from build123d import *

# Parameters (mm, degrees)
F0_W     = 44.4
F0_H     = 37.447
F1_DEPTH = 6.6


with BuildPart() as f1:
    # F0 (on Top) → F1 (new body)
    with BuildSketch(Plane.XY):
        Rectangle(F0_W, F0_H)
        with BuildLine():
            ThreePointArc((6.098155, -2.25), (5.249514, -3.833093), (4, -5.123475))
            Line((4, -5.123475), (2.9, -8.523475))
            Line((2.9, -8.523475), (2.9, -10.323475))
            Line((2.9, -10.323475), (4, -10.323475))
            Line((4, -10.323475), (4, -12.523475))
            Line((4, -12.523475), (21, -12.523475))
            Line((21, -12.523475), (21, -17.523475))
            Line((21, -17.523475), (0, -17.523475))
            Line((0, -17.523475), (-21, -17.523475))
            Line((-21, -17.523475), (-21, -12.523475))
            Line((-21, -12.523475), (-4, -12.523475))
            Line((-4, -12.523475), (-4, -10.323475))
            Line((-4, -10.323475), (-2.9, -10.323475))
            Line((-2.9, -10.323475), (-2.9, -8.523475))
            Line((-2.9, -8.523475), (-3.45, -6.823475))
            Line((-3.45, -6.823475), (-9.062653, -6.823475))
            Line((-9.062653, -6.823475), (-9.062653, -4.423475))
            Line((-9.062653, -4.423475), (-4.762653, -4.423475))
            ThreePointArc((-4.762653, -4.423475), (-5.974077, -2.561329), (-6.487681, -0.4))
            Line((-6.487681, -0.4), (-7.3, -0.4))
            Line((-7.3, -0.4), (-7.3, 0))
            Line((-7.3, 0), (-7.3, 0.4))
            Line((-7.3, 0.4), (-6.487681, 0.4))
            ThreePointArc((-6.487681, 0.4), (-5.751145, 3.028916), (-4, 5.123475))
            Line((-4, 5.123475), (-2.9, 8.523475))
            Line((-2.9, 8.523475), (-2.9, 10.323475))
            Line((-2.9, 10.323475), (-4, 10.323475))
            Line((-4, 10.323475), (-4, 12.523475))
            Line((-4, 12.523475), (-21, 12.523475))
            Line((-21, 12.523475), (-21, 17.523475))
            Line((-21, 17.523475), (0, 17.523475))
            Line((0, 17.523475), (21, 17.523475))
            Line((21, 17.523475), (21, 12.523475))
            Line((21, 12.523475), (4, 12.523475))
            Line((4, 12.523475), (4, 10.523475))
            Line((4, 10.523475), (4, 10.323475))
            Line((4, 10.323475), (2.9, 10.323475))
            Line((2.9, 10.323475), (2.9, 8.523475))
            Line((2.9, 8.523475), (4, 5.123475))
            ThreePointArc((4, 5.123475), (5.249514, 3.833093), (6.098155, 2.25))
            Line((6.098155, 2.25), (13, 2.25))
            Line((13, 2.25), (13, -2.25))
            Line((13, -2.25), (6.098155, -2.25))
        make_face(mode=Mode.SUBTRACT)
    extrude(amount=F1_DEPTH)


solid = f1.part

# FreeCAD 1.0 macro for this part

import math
import FreeCAD as App
import Part
import Sketcher
from FreeCAD import Vector
Q = App.Units.Quantity


def add_polygon(sketch, points):
    """Adds a closed chain of lines whose ends are joined by coincident constraints."""
    first, n = sketch.GeometryCount, len(points)
    for a, b in zip(points, points[1:] + points[:1]):
        sketch.addGeometry(Part.LineSegment(App.Vector(*a, 0), App.Vector(*b, 0)), False)
    for i in range(n):
        sketch.addConstraint(Sketcher.Constraint("Coincident", first + i, 2, first + (i + 1) % n, 1))

doc = App.newDocument("Part")
params = doc.addObject("Spreadsheet::Sheet", "Params")
for row, (alias, value) in enumerate([
    ("sketch1_radius", "6.5 mm"),
    ("sketch1_width", "17 mm"),
    ("sketch1_width2", "42 mm"),
    ("sketch1_height", "5 mm"),
    ("sketch1_width3", "44.4 mm"),
    ("pad1_length", "6.6 mm"),
], start=1):
    params.set(f"A{row}", alias)
    params.set(f"B{row}", "=" + value)
    params.setAlias(f"B{row}", alias)

body = doc.addObject("PartDesign::Body", "Body")

sketch1 = doc.addObject("Sketcher::SketchObject", "Sketch")
body.addObject(sketch1)
sketch1.AttachmentSupport = (doc.XY_Plane, [""])
sketch1.MapMode = "FlatFace"
add_polygon(sketch1, [(-22.2, 18.7), (-22.2, -18.7), (22.2, -18.7), (22.2, 18.7)])
sketch1.addGeometry(Part.LineSegment(Vector(13, -2.2, 0), Vector(6.1, -2.2, 0)), False)
sketch1.addGeometry(Part.ArcOfCircle(Part.Circle(Vector(0, 0, 0), Vector(0, 0, 1), 6.5), math.radians(-52), math.radians(-20)), False)
sketch1.addGeometry(Part.LineSegment(Vector(4, -5.1, 0), Vector(2.9, -8.5, 0)), False)
sketch1.addGeometry(Part.LineSegment(Vector(2.9, -8.5, 0), Vector(2.9, -10.3, 0)), False)
sketch1.addGeometry(Part.LineSegment(Vector(2.9, -10.3, 0), Vector(4, -10.3, 0)), False)
sketch1.addGeometry(Part.LineSegment(Vector(4, -10.3, 0), Vector(4, -12.5, 0)), False)
sketch1.addGeometry(Part.LineSegment(Vector(4, -12.5, 0), Vector(21, -12.5, 0)), False)
sketch1.addGeometry(Part.LineSegment(Vector(21, -12.5, 0), Vector(21, -17.5, 0)), False)
sketch1.addGeometry(Part.LineSegment(Vector(21, -17.5, 0), Vector(-21, -17.5, 0)), False)
sketch1.addGeometry(Part.LineSegment(Vector(-21, -17.5, 0), Vector(-21, -12.5, 0)), False)
sketch1.addGeometry(Part.LineSegment(Vector(-21, -12.5, 0), Vector(-4, -12.5, 0)), False)
sketch1.addGeometry(Part.LineSegment(Vector(-4, -12.5, 0), Vector(-4, -10.3, 0)), False)
sketch1.addGeometry(Part.LineSegment(Vector(-4, -10.3, 0), Vector(-2.9, -10.3, 0)), False)
sketch1.addGeometry(Part.LineSegment(Vector(-2.9, -10.3, 0), Vector(-2.9, -8.5, 0)), False)
sketch1.addGeometry(Part.LineSegment(Vector(-2.9, -8.5, 0), Vector(-3.5, -6.8, 0)), False)
sketch1.addGeometry(Part.LineSegment(Vector(-3.5, -6.8, 0), Vector(-9.1, -6.8, 0)), False)
sketch1.addGeometry(Part.LineSegment(Vector(-9.1, -6.8, 0), Vector(-9.1, -4.4, 0)), False)
sketch1.addGeometry(Part.LineSegment(Vector(-9.1, -4.4, 0), Vector(-4.8, -4.4, 0)), False)
sketch1.addGeometry(Part.ArcOfCircle(Part.Circle(Vector(0, 0, 0), Vector(0, 0, 1), 6.5), math.radians(-176), math.radians(-137)), False)
sketch1.addGeometry(Part.LineSegment(Vector(-6.5, -0.4, 0), Vector(-7.3, -0.4, 0)), False)
sketch1.addGeometry(Part.LineSegment(Vector(-7.3, -0.4, 0), Vector(-7.3, 0.4, 0)), False)
sketch1.addGeometry(Part.LineSegment(Vector(-7.3, 0.4, 0), Vector(-6.5, 0.4, 0)), False)
sketch1.addGeometry(Part.ArcOfCircle(Part.Circle(Vector(0, 0, 0), Vector(0, 0, 1), 6.5), math.radians(128), math.radians(176)), False)
sketch1.addGeometry(Part.LineSegment(Vector(-4, 5.1, 0), Vector(-2.9, 8.5, 0)), False)
sketch1.addGeometry(Part.LineSegment(Vector(-2.9, 8.5, 0), Vector(-2.9, 10.3, 0)), False)
sketch1.addGeometry(Part.LineSegment(Vector(-2.9, 10.3, 0), Vector(-4, 10.3, 0)), False)
sketch1.addGeometry(Part.LineSegment(Vector(-4, 10.3, 0), Vector(-4, 12.5, 0)), False)
sketch1.addGeometry(Part.LineSegment(Vector(-4, 12.5, 0), Vector(-21, 12.5, 0)), False)
sketch1.addGeometry(Part.LineSegment(Vector(-21, 12.5, 0), Vector(-21, 17.5, 0)), False)
sketch1.addGeometry(Part.LineSegment(Vector(-21, 17.5, 0), Vector(21, 17.5, 0)), False)
sketch1.addGeometry(Part.LineSegment(Vector(21, 17.5, 0), Vector(21, 12.5, 0)), False)
sketch1.addGeometry(Part.LineSegment(Vector(21, 12.5, 0), Vector(4, 12.5, 0)), False)
sketch1.addGeometry(Part.LineSegment(Vector(4, 12.5, 0), Vector(4, 10.3, 0)), False)
sketch1.addGeometry(Part.LineSegment(Vector(4, 10.3, 0), Vector(2.9, 10.3, 0)), False)
sketch1.addGeometry(Part.LineSegment(Vector(2.9, 10.3, 0), Vector(2.9, 8.5, 0)), False)
sketch1.addGeometry(Part.LineSegment(Vector(2.9, 8.5, 0), Vector(4, 5.1, 0)), False)
sketch1.addGeometry(Part.ArcOfCircle(Part.Circle(Vector(0, 0, 0), Vector(0, 0, 1), 6.5), math.radians(20), math.radians(52)), False)
sketch1.addGeometry(Part.LineSegment(Vector(6.1, 2.2, 0), Vector(13, 2.2, 0)), False)
sketch1.addGeometry(Part.LineSegment(Vector(13, 2.2, 0), Vector(13, -2.2, 0)), False)
sketch1.addConstraint([
    Sketcher.Constraint("Coincident", 4, 2, 5, 2),
    Sketcher.Constraint("Coincident", 5, 1, 6, 1),
    Sketcher.Constraint("Coincident", 6, 2, 7, 1),
    Sketcher.Constraint("Coincident", 7, 2, 8, 1),
    Sketcher.Constraint("Coincident", 8, 2, 9, 1),
    Sketcher.Constraint("Coincident", 9, 2, 10, 1),
    Sketcher.Constraint("Coincident", 10, 2, 11, 1),
    Sketcher.Constraint("Coincident", 11, 2, 12, 1),
    Sketcher.Constraint("Coincident", 12, 2, 13, 1),
    Sketcher.Constraint("Coincident", 13, 2, 14, 1),
    Sketcher.Constraint("Coincident", 14, 2, 15, 1),
    Sketcher.Constraint("Coincident", 15, 2, 16, 1),
    Sketcher.Constraint("Coincident", 16, 2, 17, 1),
    Sketcher.Constraint("Coincident", 17, 2, 18, 1),
    Sketcher.Constraint("Coincident", 18, 2, 19, 1),
    Sketcher.Constraint("Coincident", 19, 2, 20, 1),
    Sketcher.Constraint("Coincident", 20, 2, 21, 1),
    Sketcher.Constraint("Coincident", 21, 2, 22, 2),
    Sketcher.Constraint("Coincident", 22, 1, 23, 1),
    Sketcher.Constraint("Coincident", 23, 2, 24, 1),
    Sketcher.Constraint("Coincident", 24, 2, 25, 1),
    Sketcher.Constraint("Coincident", 25, 2, 26, 2),
    Sketcher.Constraint("Coincident", 26, 1, 27, 1),
    Sketcher.Constraint("Coincident", 27, 2, 28, 1),
    Sketcher.Constraint("Coincident", 28, 2, 29, 1),
    Sketcher.Constraint("Coincident", 29, 2, 30, 1),
    Sketcher.Constraint("Coincident", 30, 2, 31, 1),
    Sketcher.Constraint("Coincident", 31, 2, 32, 1),
    Sketcher.Constraint("Coincident", 32, 2, 33, 1),
    Sketcher.Constraint("Coincident", 33, 2, 34, 1),
    Sketcher.Constraint("Coincident", 34, 2, 35, 1),
    Sketcher.Constraint("Coincident", 35, 2, 36, 1),
    Sketcher.Constraint("Coincident", 36, 2, 37, 1),
    Sketcher.Constraint("Coincident", 37, 2, 38, 1),
    Sketcher.Constraint("Coincident", 38, 2, 39, 1),
    Sketcher.Constraint("Coincident", 39, 2, 40, 2),
    Sketcher.Constraint("Coincident", 40, 1, 41, 1),
    Sketcher.Constraint("Coincident", 41, 2, 42, 1),
    Sketcher.Constraint("Coincident", 42, 2, 4, 1),
    Sketcher.Constraint("Vertical", 0),
    Sketcher.Constraint("Horizontal", 1),
    Sketcher.Constraint("Vertical", 2),
    Sketcher.Constraint("Horizontal", 3),
    Sketcher.Constraint("Horizontal", 4),
    Sketcher.Constraint("Vertical", 7),
    Sketcher.Constraint("Horizontal", 8),
    Sketcher.Constraint("Vertical", 9),
    Sketcher.Constraint("Horizontal", 10),
    Sketcher.Constraint("Vertical", 11),
    Sketcher.Constraint("Horizontal", 12),
    Sketcher.Constraint("Vertical", 13),
    Sketcher.Constraint("Horizontal", 14),
    Sketcher.Constraint("Vertical", 15),
    Sketcher.Constraint("Horizontal", 16),
    Sketcher.Constraint("Vertical", 17),
    Sketcher.Constraint("Horizontal", 19),
    Sketcher.Constraint("Vertical", 20),
    Sketcher.Constraint("Horizontal", 21),
    Sketcher.Constraint("Horizontal", 23),
    Sketcher.Constraint("Vertical", 24),
    Sketcher.Constraint("Horizontal", 25),
    Sketcher.Constraint("Vertical", 28),
    Sketcher.Constraint("Horizontal", 29),
    Sketcher.Constraint("Vertical", 30),
    Sketcher.Constraint("Horizontal", 31),
    Sketcher.Constraint("Vertical", 32),
    Sketcher.Constraint("Horizontal", 33),
    Sketcher.Constraint("Vertical", 34),
    Sketcher.Constraint("Horizontal", 35),
    Sketcher.Constraint("Vertical", 36),
    Sketcher.Constraint("Horizontal", 37),
    Sketcher.Constraint("Vertical", 38),
    Sketcher.Constraint("Horizontal", 41),
    Sketcher.Constraint("Vertical", 42),
    Sketcher.Constraint("Coincident", 5, 3, -1, 1),
    Sketcher.Constraint("Coincident", 22, 3, -1, 1),
    Sketcher.Constraint("Coincident", 26, 3, -1, 1),
    Sketcher.Constraint("Coincident", 40, 3, -1, 1),
    Sketcher.Constraint("Equal", 5, 40),
    Sketcher.Constraint("Symmetric", 0, 2, 2, 2, -1, 1),
    Sketcher.Constraint("Symmetric", 5, 1, 26, 1, -1, 1),
    Sketcher.Constraint("Symmetric", 6, 2, 27, 2, -1, 1),
    Sketcher.Constraint("Symmetric", 8, 2, 29, 2, -1, 1),
    Sketcher.Constraint("Symmetric", 10, 2, 31, 2, -1, 1),
    Sketcher.Constraint("Symmetric", 12, 2, 33, 2, -1, 1),
    Sketcher.Constraint("Symmetric", 14, 2, 35, 2, -1, 1),
    Sketcher.Constraint("Symmetric", 16, 2, 37, 2, -1, 1),
    Sketcher.Constraint("Symmetric", 10, 2, 13, 2, -2),
    Sketcher.Constraint("Symmetric", 8, 2, 15, 2, -2),
    Sketcher.Constraint("Symmetric", 6, 2, 17, 2, -2),
    Sketcher.Constraint("Symmetric", 22, 1, 25, 2, -1),
    Sketcher.Constraint("Parallel", 18, 39),
    Sketcher.Constraint("Horizontal", 27, 2, 38, 2),
    Sketcher.Constraint("Horizontal", 26, 1, 39, 2),
    Sketcher.Constraint("Vertical", 5, 1, 8, 2),
    Sketcher.Constraint("Vertical", 4, 2, 40, 1),
    Sketcher.Constraint("Radius", 26, Q("6.5 mm")),
    Sketcher.Constraint("DistanceX", 10, 1, 10, 2, Q("17 mm")),
    Sketcher.Constraint("DistanceX", 12, 2, 12, 1, Q("42 mm")),
    Sketcher.Constraint("DistanceY", 11, 2, 11, 1, Q("5 mm")),
    Sketcher.Constraint("DistanceX", 1, 1, 1, 2, Q("44.4 mm")),
    Sketcher.Constraint("DistanceX", 8, 1, 8, 2, Q("1.1 mm")),
    Sketcher.Constraint("DistanceX", 21, 1, 21, 2, Q("4.3 mm")),
    Sketcher.Constraint("DistanceY", 7, 2, 7, 1, Q("1.8 mm")),
    Sketcher.Constraint("DistanceY", 9, 2, 9, 1, Q("2.2 mm")),
    Sketcher.Constraint("DistanceY", 20, 1, 20, 2, Q("2.4 mm")),
    Sketcher.Constraint("DistanceY", 24, 1, 24, 2, Q("0.8 mm")),
    Sketcher.Constraint("DistanceY", 42, 2, 42, 1, Q("4.5 mm")),
    Sketcher.Constraint("DistanceX", -1, 1, 41, 2, Q("13 mm")),
    Sketcher.Constraint("DistanceX", 23, 2, -1, 1, Q("7.3 mm")),
    Sketcher.Constraint("DistanceY", 6, 2, 5, 1, Q("3.4 mm")),
    Sketcher.Constraint("DistanceY", 17, 2, 18, 2, Q("1.7 mm")),
    Sketcher.Constraint("DistanceY", 0, 2, 0, 1, Q("37.447 mm")),
])
sketch1.setExpression("Constraints[100]", "Params.sketch1_radius")
sketch1.setExpression("Constraints[101]", "Params.sketch1_width")
sketch1.setExpression("Constraints[102]", "Params.sketch1_width2")
sketch1.setExpression("Constraints[103]", "Params.sketch1_height")
sketch1.setExpression("Constraints[104]", "Params.sketch1_width3")
pad1 = doc.addObject("PartDesign::Pad", "Pad")
body.addObject(pad1)
pad1.Profile = sketch1
pad1.setExpression("Length", "Params.pad1_length")

doc.recompute()
